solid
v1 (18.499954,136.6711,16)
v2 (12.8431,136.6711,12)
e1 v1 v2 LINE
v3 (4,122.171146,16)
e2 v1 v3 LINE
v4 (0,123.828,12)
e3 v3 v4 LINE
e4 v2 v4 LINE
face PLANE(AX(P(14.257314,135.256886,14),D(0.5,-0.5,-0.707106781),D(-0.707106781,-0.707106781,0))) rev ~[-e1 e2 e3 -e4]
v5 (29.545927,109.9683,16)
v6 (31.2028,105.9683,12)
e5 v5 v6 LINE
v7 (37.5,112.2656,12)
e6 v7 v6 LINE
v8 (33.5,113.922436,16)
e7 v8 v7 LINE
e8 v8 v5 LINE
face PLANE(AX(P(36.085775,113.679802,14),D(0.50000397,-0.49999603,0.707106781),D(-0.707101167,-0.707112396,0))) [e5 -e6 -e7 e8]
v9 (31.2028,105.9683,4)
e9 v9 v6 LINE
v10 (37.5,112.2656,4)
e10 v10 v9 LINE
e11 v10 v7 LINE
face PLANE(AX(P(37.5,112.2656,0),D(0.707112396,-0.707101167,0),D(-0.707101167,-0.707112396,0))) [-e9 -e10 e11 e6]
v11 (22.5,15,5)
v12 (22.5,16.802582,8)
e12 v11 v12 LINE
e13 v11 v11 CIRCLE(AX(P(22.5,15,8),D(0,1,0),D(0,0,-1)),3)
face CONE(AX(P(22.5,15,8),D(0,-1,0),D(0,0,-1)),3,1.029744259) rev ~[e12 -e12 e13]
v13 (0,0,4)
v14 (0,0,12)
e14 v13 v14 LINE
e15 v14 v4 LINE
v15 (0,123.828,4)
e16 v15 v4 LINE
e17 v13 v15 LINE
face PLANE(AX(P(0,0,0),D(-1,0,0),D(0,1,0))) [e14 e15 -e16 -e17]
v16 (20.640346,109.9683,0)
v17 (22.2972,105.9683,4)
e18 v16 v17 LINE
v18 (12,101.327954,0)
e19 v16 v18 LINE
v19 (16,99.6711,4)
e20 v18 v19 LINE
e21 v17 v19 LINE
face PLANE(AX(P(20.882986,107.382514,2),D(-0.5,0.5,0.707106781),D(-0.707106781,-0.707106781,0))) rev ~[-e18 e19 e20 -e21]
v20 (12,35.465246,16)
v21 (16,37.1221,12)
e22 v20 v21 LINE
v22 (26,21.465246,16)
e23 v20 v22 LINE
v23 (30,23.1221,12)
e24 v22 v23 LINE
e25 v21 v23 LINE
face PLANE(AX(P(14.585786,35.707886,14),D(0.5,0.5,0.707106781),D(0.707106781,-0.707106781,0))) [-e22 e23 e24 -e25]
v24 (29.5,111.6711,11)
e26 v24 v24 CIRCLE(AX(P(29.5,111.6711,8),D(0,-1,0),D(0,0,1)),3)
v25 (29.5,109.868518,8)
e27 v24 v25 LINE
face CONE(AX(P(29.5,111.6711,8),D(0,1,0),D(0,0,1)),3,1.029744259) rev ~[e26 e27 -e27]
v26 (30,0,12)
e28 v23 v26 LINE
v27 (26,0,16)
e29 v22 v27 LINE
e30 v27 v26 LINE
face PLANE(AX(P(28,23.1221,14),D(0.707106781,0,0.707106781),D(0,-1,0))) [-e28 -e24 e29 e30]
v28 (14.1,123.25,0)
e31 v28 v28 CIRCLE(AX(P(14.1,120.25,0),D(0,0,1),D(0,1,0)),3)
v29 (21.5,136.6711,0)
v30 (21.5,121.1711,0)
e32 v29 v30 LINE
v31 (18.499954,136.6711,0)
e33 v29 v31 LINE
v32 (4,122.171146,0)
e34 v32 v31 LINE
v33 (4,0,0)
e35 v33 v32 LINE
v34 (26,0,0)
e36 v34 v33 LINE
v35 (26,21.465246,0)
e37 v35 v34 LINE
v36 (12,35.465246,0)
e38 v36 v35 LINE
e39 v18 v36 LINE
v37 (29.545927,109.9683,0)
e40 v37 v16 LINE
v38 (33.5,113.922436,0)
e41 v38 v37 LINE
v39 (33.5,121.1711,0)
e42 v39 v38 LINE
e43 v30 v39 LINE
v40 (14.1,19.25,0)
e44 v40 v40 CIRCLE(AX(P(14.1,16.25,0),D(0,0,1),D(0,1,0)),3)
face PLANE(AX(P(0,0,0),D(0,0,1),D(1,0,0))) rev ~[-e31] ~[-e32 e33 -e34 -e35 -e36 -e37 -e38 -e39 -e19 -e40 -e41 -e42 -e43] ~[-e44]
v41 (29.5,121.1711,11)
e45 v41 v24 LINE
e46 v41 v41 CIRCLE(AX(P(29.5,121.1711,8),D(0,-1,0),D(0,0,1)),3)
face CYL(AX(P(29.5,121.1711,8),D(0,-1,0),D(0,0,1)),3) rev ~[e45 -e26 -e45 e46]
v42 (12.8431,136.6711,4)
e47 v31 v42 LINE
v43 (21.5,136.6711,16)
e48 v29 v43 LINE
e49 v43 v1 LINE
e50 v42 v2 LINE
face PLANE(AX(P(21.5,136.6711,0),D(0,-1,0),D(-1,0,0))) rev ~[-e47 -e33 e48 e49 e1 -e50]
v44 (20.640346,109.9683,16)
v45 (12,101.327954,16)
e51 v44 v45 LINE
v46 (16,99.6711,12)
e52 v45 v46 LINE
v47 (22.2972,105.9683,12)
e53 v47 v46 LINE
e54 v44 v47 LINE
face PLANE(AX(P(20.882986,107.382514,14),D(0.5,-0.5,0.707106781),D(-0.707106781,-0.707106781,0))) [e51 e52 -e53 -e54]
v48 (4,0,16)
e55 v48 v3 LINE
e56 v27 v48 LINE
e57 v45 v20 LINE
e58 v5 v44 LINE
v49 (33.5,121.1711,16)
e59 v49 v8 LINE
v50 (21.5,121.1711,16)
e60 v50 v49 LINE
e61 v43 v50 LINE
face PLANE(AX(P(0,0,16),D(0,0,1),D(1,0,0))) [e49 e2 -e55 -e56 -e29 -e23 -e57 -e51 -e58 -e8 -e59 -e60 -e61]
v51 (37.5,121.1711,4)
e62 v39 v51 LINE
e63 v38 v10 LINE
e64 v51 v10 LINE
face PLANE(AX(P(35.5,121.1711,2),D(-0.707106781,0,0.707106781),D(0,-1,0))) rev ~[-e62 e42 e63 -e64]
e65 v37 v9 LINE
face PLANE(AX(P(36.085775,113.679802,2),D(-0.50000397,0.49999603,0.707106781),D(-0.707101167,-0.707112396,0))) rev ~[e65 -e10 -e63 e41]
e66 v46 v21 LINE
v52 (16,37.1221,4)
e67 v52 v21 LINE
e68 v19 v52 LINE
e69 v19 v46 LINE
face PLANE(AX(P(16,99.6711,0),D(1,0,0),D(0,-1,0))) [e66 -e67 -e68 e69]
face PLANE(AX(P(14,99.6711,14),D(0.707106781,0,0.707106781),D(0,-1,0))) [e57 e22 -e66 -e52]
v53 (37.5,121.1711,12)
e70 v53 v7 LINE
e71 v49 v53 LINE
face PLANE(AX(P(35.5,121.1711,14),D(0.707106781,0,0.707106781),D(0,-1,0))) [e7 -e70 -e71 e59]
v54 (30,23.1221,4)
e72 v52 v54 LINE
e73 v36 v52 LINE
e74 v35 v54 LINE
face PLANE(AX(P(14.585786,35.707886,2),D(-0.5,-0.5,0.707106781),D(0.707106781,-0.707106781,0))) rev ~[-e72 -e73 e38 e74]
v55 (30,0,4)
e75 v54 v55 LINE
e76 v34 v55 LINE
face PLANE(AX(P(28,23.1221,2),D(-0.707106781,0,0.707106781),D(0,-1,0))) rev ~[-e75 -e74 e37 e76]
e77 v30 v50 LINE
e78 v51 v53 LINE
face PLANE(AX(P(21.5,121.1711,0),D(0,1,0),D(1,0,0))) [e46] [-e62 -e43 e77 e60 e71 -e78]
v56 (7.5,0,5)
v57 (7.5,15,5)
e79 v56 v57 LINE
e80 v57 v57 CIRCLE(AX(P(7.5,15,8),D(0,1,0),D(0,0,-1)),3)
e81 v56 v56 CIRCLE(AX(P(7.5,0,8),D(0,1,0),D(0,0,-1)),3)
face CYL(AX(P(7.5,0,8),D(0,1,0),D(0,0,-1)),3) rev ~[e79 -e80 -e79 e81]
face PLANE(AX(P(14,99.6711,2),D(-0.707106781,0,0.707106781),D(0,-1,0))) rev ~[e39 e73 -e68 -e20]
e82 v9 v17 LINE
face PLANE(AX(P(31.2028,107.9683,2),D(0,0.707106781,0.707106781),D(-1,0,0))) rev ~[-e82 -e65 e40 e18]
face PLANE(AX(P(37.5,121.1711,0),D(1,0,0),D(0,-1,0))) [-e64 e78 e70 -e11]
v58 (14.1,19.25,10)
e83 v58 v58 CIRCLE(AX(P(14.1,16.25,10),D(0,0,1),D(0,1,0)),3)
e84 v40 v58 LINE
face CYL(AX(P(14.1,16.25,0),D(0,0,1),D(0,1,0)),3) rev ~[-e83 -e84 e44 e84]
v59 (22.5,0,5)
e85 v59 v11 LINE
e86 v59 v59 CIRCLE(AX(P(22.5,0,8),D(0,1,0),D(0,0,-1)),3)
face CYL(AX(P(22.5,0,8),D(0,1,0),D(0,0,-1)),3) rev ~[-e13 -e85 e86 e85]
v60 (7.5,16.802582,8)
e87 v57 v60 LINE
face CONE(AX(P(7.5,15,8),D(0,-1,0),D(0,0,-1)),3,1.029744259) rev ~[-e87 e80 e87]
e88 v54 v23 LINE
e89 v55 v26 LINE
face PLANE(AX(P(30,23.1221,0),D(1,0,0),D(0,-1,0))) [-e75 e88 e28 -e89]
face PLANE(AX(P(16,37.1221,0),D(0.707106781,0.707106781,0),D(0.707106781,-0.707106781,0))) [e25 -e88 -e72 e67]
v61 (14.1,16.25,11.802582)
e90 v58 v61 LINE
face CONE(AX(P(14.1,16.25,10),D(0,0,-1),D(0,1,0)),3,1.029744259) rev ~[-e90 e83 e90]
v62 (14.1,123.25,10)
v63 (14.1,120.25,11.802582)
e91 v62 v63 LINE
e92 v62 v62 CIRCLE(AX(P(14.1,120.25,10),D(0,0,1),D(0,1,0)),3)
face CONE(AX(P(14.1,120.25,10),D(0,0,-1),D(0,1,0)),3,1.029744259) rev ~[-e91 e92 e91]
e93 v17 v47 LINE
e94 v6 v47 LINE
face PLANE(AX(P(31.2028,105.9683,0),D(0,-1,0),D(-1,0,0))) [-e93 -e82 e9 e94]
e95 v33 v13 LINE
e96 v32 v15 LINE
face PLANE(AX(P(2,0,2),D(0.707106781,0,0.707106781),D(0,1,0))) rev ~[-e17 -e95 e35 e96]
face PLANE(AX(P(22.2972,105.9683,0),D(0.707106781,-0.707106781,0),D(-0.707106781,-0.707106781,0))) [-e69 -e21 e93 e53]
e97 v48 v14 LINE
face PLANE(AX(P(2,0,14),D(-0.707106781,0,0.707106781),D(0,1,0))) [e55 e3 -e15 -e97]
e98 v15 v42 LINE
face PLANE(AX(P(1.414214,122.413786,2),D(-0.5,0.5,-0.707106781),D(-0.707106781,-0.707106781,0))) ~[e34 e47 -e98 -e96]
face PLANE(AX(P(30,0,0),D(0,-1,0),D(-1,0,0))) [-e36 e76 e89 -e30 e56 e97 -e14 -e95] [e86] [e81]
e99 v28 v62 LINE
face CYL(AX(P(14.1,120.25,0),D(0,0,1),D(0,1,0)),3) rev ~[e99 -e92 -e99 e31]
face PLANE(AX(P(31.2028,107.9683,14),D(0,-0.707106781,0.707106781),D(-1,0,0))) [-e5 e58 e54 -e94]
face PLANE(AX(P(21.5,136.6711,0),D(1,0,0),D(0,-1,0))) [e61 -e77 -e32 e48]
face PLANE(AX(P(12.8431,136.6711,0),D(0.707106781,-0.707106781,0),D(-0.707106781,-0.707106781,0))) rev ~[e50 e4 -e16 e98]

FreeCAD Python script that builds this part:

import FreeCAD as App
import Part
import Sketcher
Q = App.Units.Quantity


def edges_at(feature, points):
    """Names of the edges that pass closest to the given points."""
    edges = feature.Shape.Edges
    near = lambda p: min(range(len(edges)), key=lambda i: edges[i].distToShape(Part.Vertex(*p))[0])
    return sorted({f"Edge{near(p) + 1}" for p in points})


def add_polygon(sketch, points):
    """Adds a closed chain of lines whose ends are joined by coincident constraints."""
    first, n = sketch.GeometryCount, len(points)
    for a, b in zip(points, points[1:] + points[:1]):
        sketch.addGeometry(Part.LineSegment(App.Vector(*a, 0), App.Vector(*b, 0)), False)
    for i in range(n):
        sketch.addConstraint(Sketcher.Constraint("Coincident", first + i, 2, first + (i + 1) % n, 1))

doc = App.newDocument("Part")
body = doc.addObject("PartDesign::Body", "Body")

sketch1 = body.newObject("Sketcher::SketchObject", "Sketch")
sketch1.AttachmentSupport = (doc.getObject("XY_Plane"), [""])
sketch1.MapMode = "FlatFace"
add_polygon(sketch1, [(21.5, 121.1711), (21.5, 136.6711), (12.8431, 136.6711), (0, 123.828), (0, 0), (30, 0), (30, 23.1221), (16, 37.1221), (16, 99.6711), (22.2972, 105.9683), (31.2028, 105.9683), (37.5, 112.2656), (37.5, 121.1711)])
sketch1.addConstraint(Sketcher.Constraint("Vertical", 0))
sketch1.addConstraint(Sketcher.Constraint("Horizontal", 1))
sketch1.addConstraint(Sketcher.Constraint("Vertical", 3))
sketch1.addConstraint(Sketcher.Constraint("Horizontal", 4))
sketch1.addConstraint(Sketcher.Constraint("Vertical", 5))
sketch1.addConstraint(Sketcher.Constraint("Vertical", 7))
sketch1.addConstraint(Sketcher.Constraint("Horizontal", 9))
sketch1.addConstraint(Sketcher.Constraint("Vertical", 11))
sketch1.addConstraint(Sketcher.Constraint("Horizontal", 12))
sketch1.addConstraint(Sketcher.Constraint("Coincident", 3, 2, -1, 1))
sketch1.addConstraint(Sketcher.Constraint("Perpendicular", 2, 6))
sketch1.addConstraint(Sketcher.Constraint("Perpendicular", 6, 8))
sketch1.addConstraint(Sketcher.Constraint("Parallel", 8, 10))
sketch1.addConstraint(Sketcher.Constraint("Equal", 9, 11))
sketch1.addConstraint(Sketcher.Constraint("Equal", 8, 10))
sketch1.addConstraint(Sketcher.Constraint("DistanceX", 4, 1, 4, 2, 30.0))
sketch1.addConstraint(Sketcher.Constraint("DistanceX", 12, 2, 12, 1, 16.0))
sketch1.addConstraint(Sketcher.Constraint("Angle", 8, Q("45 deg")))
sketch1.addConstraint(Sketcher.Constraint("DistanceY", 0, 1, 0, 2, 15.5))
sketch1.addConstraint(Sketcher.Constraint("DistanceX", -1, 1, 6, 2, 16.0))
sketch1.addConstraint(Sketcher.Constraint("DistanceX", 1, 2, 1, 1, 8.657))
sketch1.addConstraint(Sketcher.Constraint("DistanceY", 7, 2, 1, 2, 37.0))
sketch1.addConstraint(Sketcher.Constraint("DistanceY", 3, 2, 3, 1, 123.828))
sketch1.addConstraint(Sketcher.Constraint("DistanceY", 5, 1, 5, 2, 23.122))
sketch1.addConstraint(Sketcher.Constraint("DistanceX", 9, 1, 9, 2, 8.9056))
pad1 = body.newObject("PartDesign::Pad", "Pad")
pad1.Profile = sketch1
pad1.Length = 16

sketch2 = body.newObject("Sketcher::SketchObject", "Sketch001")
sketch2.AttachmentSupport = (doc.getObject("XZ_Plane"), [""])
sketch2.MapMode = "FlatFace"
sketch2.AttachmentOffset = App.Placement(App.Vector(0, 0, -121.1711), App.Rotation())
sketch2.addGeometry(Part.Circle(App.Vector(29.5, 8, 0), App.Vector(0, 0, 1), 3), False)
sketch2.addConstraint(Sketcher.Constraint("Diameter", 0, 6.0))
sketch2.addConstraint(Sketcher.Constraint("DistanceY", -1, 1, 0, 3, 8.0))
sketch2.addConstraint(Sketcher.Constraint("DistanceX", -1, 1, 0, 3, 29.5))
doc.recompute()
hole = body.newObject("PartDesign::Hole", "Hole")
hole.Profile = sketch2
hole.ThreadType = "None"
hole.Diameter = 6
hole.DepthType = "Dimension"
hole.Depth = 9.5
hole.DrillPoint = "Angled"
hole.DrillPointAngle = 118
hole.Reversed = True

sketch3 = body.newObject("Sketcher::SketchObject", "Sketch002")
sketch3.AttachmentSupport = (doc.getObject("XZ_Plane"), [""])
sketch3.MapMode = "FlatFace"
sketch3.addGeometry(Part.Circle(App.Vector(7.5, 8, 0), App.Vector(0, 0, 1), 3), False)
sketch3.addGeometry(Part.Circle(App.Vector(22.5, 8, 0), App.Vector(0, 0, 1), 3), False)
sketch3.addConstraint(Sketcher.Constraint("Equal", 0, 1))
sketch3.addConstraint(Sketcher.Constraint("Horizontal", 0, 3, 1, 3))
sketch3.addConstraint(Sketcher.Constraint("Diameter", 0, 6.0))
sketch3.addConstraint(Sketcher.Constraint("DistanceY", -1, 1, 0, 3, 8.0))
sketch3.addConstraint(Sketcher.Constraint("DistanceX", 0, 3, 1, 3, 15.0))
sketch3.addConstraint(Sketcher.Constraint("DistanceX", -1, 1, 0, 3, 7.5))
doc.recompute()
hole2 = body.newObject("PartDesign::Hole", "Hole001")
hole2.Profile = sketch3
hole2.ThreadType = "None"
hole2.Diameter = 6
hole2.DepthType = "Dimension"
hole2.Depth = 15
hole2.DrillPoint = "Angled"
hole2.DrillPointAngle = 118
doc.recompute()

chamfer = body.newObject("PartDesign::Chamfer", "Chamfer")
chamfer.Base = (hole2, edges_at(hole2, [
    (0, 61.914, 16),
    (6.422, 130.25, 16),
    (6.422, 130.25, 0),
    (0, 61.914, 0),
    (34.351, 109.117, 0),
    (26.75, 105.968, 0),
    (19.149, 102.82, 0),
    (16, 68.397, 0),
    (23, 30.122, 0),
    (30, 11.561, 0),
    (34.351, 109.117, 16),
    (26.75, 105.968, 16),
    (19.149, 102.82, 16),
    (16, 68.397, 16),
    (23, 30.122, 16),
    (30, 11.561, 16),
    (37.5, 116.718, 16),
    (37.5, 116.718, 0),
]))
chamfer.Size = 4

sketch4 = body.newObject("Sketcher::SketchObject", "Sketch003")
sketch4.AttachmentSupport = (doc.getObject("XY_Plane"), [""])
sketch4.MapMode = "FlatFace"
sketch4.addGeometry(Part.Circle(App.Vector(14.1, 120.25, 0), App.Vector(0, 0, 1), 3), False)
sketch4.addGeometry(Part.Circle(App.Vector(14.1, 16.25, 0), App.Vector(0, 0, 1), 3), False)
sketch4.addConstraint(Sketcher.Constraint("Equal", 0, 1))
sketch4.addConstraint(Sketcher.Constraint("Vertical", 0, 3, 1, 3))
sketch4.addConstraint(Sketcher.Constraint("Diameter", 0, 6.0))
sketch4.addConstraint(Sketcher.Constraint("DistanceY", 1, 3, 0, 3, 104.0))
sketch4.addConstraint(Sketcher.Constraint("DistanceX", -1, 1, 0, 3, 14.1))
sketch4.addConstraint(Sketcher.Constraint("DistanceY", -1, 1, 0, 3, 120.25))
doc.recompute()
hole3 = body.newObject("PartDesign::Hole", "Hole002")
hole3.Profile = sketch4
hole3.ThreadType = "None"
hole3.Diameter = 6
hole3.DepthType = "Dimension"
hole3.Depth = 10
hole3.DrillPoint = "Angled"
hole3.DrillPointAngle = 118
hole3.Reversed = True

doc.recompute()
